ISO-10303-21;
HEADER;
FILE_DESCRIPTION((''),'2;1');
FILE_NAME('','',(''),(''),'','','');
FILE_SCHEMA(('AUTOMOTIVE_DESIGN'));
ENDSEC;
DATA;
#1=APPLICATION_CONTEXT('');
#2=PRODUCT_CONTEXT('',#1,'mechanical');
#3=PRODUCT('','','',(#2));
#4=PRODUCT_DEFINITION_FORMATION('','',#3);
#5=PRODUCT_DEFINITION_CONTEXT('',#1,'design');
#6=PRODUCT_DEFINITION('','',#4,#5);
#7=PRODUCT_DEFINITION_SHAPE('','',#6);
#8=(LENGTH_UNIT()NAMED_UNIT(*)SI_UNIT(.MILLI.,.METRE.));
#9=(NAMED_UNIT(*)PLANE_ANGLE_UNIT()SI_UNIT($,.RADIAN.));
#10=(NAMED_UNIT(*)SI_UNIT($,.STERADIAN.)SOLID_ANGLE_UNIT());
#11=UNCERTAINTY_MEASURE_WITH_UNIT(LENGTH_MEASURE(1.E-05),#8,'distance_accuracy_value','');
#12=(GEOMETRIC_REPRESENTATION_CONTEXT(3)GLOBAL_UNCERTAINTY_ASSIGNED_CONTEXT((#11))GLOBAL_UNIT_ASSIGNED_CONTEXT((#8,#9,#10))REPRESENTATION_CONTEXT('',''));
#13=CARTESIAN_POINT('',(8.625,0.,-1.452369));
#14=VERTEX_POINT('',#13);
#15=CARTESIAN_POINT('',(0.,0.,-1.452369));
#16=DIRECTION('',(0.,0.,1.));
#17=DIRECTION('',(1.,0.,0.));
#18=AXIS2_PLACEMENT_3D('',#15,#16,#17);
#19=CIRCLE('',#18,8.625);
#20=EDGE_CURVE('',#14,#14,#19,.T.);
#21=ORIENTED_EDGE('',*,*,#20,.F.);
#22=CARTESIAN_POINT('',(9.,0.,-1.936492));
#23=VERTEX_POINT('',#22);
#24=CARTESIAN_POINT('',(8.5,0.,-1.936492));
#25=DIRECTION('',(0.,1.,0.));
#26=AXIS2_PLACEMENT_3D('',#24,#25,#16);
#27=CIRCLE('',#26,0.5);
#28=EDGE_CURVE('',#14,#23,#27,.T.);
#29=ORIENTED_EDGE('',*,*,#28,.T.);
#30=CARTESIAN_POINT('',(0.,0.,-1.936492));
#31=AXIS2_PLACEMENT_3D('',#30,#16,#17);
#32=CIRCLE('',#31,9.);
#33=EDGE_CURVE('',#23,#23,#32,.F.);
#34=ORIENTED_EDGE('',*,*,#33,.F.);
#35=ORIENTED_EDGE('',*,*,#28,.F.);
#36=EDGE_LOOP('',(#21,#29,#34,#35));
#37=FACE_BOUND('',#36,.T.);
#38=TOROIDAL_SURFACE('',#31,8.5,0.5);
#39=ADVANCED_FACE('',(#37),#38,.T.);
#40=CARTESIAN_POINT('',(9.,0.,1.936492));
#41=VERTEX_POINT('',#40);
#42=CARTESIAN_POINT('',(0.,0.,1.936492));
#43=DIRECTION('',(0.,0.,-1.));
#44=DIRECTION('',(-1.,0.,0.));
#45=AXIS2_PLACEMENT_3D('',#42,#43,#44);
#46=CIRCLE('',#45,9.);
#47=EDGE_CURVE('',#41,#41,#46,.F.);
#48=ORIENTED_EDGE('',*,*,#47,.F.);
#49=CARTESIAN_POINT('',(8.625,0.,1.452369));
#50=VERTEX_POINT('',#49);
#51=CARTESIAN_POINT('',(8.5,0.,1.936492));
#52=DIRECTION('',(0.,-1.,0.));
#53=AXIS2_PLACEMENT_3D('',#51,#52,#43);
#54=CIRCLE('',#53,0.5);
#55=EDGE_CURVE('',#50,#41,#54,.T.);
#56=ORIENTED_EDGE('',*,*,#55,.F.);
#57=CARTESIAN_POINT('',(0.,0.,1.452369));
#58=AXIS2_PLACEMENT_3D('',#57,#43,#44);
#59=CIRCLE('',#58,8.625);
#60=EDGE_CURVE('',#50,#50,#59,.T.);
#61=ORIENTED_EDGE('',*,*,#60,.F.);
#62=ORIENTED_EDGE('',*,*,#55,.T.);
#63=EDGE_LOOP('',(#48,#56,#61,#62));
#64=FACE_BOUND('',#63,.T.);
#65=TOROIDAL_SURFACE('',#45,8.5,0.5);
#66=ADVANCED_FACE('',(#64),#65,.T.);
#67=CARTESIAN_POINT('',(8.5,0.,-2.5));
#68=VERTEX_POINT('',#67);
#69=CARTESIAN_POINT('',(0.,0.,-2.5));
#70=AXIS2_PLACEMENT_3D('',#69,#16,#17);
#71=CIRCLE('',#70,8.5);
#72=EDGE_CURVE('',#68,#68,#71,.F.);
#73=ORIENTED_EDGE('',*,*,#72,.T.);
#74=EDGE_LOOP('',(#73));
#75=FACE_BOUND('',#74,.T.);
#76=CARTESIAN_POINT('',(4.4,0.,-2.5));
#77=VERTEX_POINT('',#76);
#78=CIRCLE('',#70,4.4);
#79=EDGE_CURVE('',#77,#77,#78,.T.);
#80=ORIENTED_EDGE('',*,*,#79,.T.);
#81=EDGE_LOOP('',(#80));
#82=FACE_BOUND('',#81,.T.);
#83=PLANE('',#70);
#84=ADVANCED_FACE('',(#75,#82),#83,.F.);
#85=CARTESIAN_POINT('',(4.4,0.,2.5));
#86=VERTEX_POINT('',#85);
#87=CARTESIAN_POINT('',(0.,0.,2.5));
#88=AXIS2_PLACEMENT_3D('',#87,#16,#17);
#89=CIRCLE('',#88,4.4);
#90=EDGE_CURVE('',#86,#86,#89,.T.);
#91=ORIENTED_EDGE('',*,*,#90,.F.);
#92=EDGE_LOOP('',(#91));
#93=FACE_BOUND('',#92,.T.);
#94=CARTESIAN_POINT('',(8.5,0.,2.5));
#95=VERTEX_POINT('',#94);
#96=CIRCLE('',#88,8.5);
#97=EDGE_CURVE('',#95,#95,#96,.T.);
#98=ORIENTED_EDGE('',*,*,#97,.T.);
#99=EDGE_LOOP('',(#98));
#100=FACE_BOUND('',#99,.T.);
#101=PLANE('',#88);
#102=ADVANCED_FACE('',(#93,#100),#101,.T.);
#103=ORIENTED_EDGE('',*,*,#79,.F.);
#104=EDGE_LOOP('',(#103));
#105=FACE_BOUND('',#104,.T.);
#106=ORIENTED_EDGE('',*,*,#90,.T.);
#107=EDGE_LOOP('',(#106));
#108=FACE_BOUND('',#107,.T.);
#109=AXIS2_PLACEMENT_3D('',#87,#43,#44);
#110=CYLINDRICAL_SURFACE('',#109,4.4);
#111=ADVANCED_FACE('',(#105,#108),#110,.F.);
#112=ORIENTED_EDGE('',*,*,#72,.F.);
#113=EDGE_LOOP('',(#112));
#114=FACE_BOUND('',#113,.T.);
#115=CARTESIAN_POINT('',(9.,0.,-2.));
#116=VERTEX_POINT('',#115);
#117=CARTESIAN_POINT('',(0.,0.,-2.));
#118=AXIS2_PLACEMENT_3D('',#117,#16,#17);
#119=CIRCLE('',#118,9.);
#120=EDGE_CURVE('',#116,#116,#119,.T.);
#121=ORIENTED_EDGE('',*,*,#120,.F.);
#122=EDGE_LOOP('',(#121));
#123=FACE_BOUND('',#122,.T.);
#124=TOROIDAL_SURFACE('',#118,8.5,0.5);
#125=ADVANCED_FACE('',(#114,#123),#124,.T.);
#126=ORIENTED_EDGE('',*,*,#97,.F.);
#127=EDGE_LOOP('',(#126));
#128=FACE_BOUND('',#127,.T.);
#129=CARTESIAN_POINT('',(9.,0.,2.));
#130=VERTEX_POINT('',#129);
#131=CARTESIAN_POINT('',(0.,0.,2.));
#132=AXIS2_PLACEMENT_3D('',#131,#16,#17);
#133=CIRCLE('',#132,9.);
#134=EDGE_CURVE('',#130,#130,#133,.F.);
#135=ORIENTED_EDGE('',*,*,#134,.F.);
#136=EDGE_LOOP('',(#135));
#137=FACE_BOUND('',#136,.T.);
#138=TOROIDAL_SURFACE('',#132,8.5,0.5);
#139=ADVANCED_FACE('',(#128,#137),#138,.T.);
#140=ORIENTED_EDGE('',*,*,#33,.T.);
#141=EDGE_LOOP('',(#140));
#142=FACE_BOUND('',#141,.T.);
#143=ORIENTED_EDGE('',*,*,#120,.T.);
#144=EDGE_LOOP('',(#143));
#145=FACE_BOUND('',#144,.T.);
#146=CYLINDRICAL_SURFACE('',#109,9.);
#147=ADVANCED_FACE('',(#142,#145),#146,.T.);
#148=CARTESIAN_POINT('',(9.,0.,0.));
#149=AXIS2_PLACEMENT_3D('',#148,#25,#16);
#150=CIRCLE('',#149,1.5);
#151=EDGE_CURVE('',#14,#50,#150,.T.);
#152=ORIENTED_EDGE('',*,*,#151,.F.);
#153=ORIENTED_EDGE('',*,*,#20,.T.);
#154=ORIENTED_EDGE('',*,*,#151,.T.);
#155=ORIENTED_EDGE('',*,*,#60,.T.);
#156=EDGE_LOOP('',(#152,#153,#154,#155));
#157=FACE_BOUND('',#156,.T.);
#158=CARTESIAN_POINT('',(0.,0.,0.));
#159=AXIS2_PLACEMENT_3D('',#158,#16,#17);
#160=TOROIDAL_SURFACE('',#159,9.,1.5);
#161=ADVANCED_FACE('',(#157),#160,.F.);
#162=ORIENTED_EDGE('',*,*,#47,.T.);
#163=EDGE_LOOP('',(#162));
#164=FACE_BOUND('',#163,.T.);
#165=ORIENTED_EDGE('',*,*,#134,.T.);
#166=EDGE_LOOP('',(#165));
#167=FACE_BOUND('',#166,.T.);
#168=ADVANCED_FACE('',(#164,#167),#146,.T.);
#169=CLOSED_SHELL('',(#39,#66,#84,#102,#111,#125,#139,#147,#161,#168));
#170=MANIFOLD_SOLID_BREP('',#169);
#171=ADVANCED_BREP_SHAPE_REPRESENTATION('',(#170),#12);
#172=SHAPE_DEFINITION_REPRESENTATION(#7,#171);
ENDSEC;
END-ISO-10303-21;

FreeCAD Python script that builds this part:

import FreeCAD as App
import Part
import Sketcher
Q = App.Units.Quantity


def edges_at(feature, points):
    """Names of the edges that pass closest to the given points."""
    edges = feature.Shape.Edges
    near = lambda p: min(range(len(edges)), key=lambda i: edges[i].distToShape(Part.Vertex(*p))[0])
    return sorted({f"Edge{near(p) + 1}" for p in points})

doc = App.newDocument("Part")
body = doc.addObject("PartDesign::Body", "Body")

sketch1 = body.newObject("Sketcher::SketchObject", "Sketch")
sketch1.AttachmentSupport = (doc.getObject("XY_Plane"), [""])
sketch1.MapMode = "FlatFace"
sketch1.addGeometry([
    Part.Circle(App.Vector(0, 0, 0), App.Vector(0, 0, 1), 9),
    Part.Circle(App.Vector(0, 0, 0), App.Vector(0, 0, 1), 4.4),
], False)
sketch1.addConstraint([
    Sketcher.Constraint("Coincident", 0, 3, -1, 1),
    Sketcher.Constraint("Coincident", 1, 3, -1, 1),
    Sketcher.Constraint("Diameter", 0, Q("18 mm")),
    Sketcher.Constraint("Diameter", 1, Q("8.8 mm")),
])
pad1 = body.newObject("PartDesign::Pad", "Pad")
pad1.Profile = sketch1
pad1.Length = 5
pad1.Midplane = True

sketch2 = body.newObject("Sketcher::SketchObject", "Sketch001")
sketch2.AttachmentSupport = (doc.getObject("XZ_Plane"), [""])
sketch2.MapMode = "FlatFace"
sketch2.addGeometry(Part.Circle(App.Vector(9, 0, 0), App.Vector(0, 0, 1), 1.5), False)
sketch2.addConstraint([
    Sketcher.Constraint("PointOnObject", 0, 3, -1),
    Sketcher.Constraint("Diameter", 0, Q("3 mm")),
    Sketcher.Constraint("DistanceX", -1, 1, 0, 3, Q("9 mm")),
])

sketch3 = body.newObject("Sketcher::SketchObject", "Sketch002")
sketch3.AttachmentSupport = (doc.getObject("XY_Plane"), [""])
sketch3.MapMode = "FlatFace"
sketch3.addGeometry(Part.Circle(App.Vector(0, 0, 0), App.Vector(0, 0, 1), 9), False)
sketch3.addConstraint([
    Sketcher.Constraint("Coincident", 0, 3, -1, 1),
    Sketcher.Constraint("Diameter", 0, Q("18 mm")),
])
doc.recompute()

subtractivepipe = body.newObject("PartDesign::SubtractivePipe", "SubtractivePipe")
subtractivepipe.Profile = sketch2
subtractivepipe.Spine = (sketch3, ["Edge1"])
doc.recompute()

fillet = body.newObject("PartDesign::Fillet", "Fillet")
fillet.Base = (subtractivepipe, edges_at(subtractivepipe, [(-9, 0, -2.5), (-9, 0, 2.5)]))
fillet.Radius = 0.5
doc.recompute()

fillet2 = body.newObject("PartDesign::Fillet", "Fillet001")
fillet2.Base = (fillet, edges_at(fillet, [(-9, 0, 1.5), (-9, 0, -1.5)]))
fillet2.Radius = 0.5

doc.recompute()
